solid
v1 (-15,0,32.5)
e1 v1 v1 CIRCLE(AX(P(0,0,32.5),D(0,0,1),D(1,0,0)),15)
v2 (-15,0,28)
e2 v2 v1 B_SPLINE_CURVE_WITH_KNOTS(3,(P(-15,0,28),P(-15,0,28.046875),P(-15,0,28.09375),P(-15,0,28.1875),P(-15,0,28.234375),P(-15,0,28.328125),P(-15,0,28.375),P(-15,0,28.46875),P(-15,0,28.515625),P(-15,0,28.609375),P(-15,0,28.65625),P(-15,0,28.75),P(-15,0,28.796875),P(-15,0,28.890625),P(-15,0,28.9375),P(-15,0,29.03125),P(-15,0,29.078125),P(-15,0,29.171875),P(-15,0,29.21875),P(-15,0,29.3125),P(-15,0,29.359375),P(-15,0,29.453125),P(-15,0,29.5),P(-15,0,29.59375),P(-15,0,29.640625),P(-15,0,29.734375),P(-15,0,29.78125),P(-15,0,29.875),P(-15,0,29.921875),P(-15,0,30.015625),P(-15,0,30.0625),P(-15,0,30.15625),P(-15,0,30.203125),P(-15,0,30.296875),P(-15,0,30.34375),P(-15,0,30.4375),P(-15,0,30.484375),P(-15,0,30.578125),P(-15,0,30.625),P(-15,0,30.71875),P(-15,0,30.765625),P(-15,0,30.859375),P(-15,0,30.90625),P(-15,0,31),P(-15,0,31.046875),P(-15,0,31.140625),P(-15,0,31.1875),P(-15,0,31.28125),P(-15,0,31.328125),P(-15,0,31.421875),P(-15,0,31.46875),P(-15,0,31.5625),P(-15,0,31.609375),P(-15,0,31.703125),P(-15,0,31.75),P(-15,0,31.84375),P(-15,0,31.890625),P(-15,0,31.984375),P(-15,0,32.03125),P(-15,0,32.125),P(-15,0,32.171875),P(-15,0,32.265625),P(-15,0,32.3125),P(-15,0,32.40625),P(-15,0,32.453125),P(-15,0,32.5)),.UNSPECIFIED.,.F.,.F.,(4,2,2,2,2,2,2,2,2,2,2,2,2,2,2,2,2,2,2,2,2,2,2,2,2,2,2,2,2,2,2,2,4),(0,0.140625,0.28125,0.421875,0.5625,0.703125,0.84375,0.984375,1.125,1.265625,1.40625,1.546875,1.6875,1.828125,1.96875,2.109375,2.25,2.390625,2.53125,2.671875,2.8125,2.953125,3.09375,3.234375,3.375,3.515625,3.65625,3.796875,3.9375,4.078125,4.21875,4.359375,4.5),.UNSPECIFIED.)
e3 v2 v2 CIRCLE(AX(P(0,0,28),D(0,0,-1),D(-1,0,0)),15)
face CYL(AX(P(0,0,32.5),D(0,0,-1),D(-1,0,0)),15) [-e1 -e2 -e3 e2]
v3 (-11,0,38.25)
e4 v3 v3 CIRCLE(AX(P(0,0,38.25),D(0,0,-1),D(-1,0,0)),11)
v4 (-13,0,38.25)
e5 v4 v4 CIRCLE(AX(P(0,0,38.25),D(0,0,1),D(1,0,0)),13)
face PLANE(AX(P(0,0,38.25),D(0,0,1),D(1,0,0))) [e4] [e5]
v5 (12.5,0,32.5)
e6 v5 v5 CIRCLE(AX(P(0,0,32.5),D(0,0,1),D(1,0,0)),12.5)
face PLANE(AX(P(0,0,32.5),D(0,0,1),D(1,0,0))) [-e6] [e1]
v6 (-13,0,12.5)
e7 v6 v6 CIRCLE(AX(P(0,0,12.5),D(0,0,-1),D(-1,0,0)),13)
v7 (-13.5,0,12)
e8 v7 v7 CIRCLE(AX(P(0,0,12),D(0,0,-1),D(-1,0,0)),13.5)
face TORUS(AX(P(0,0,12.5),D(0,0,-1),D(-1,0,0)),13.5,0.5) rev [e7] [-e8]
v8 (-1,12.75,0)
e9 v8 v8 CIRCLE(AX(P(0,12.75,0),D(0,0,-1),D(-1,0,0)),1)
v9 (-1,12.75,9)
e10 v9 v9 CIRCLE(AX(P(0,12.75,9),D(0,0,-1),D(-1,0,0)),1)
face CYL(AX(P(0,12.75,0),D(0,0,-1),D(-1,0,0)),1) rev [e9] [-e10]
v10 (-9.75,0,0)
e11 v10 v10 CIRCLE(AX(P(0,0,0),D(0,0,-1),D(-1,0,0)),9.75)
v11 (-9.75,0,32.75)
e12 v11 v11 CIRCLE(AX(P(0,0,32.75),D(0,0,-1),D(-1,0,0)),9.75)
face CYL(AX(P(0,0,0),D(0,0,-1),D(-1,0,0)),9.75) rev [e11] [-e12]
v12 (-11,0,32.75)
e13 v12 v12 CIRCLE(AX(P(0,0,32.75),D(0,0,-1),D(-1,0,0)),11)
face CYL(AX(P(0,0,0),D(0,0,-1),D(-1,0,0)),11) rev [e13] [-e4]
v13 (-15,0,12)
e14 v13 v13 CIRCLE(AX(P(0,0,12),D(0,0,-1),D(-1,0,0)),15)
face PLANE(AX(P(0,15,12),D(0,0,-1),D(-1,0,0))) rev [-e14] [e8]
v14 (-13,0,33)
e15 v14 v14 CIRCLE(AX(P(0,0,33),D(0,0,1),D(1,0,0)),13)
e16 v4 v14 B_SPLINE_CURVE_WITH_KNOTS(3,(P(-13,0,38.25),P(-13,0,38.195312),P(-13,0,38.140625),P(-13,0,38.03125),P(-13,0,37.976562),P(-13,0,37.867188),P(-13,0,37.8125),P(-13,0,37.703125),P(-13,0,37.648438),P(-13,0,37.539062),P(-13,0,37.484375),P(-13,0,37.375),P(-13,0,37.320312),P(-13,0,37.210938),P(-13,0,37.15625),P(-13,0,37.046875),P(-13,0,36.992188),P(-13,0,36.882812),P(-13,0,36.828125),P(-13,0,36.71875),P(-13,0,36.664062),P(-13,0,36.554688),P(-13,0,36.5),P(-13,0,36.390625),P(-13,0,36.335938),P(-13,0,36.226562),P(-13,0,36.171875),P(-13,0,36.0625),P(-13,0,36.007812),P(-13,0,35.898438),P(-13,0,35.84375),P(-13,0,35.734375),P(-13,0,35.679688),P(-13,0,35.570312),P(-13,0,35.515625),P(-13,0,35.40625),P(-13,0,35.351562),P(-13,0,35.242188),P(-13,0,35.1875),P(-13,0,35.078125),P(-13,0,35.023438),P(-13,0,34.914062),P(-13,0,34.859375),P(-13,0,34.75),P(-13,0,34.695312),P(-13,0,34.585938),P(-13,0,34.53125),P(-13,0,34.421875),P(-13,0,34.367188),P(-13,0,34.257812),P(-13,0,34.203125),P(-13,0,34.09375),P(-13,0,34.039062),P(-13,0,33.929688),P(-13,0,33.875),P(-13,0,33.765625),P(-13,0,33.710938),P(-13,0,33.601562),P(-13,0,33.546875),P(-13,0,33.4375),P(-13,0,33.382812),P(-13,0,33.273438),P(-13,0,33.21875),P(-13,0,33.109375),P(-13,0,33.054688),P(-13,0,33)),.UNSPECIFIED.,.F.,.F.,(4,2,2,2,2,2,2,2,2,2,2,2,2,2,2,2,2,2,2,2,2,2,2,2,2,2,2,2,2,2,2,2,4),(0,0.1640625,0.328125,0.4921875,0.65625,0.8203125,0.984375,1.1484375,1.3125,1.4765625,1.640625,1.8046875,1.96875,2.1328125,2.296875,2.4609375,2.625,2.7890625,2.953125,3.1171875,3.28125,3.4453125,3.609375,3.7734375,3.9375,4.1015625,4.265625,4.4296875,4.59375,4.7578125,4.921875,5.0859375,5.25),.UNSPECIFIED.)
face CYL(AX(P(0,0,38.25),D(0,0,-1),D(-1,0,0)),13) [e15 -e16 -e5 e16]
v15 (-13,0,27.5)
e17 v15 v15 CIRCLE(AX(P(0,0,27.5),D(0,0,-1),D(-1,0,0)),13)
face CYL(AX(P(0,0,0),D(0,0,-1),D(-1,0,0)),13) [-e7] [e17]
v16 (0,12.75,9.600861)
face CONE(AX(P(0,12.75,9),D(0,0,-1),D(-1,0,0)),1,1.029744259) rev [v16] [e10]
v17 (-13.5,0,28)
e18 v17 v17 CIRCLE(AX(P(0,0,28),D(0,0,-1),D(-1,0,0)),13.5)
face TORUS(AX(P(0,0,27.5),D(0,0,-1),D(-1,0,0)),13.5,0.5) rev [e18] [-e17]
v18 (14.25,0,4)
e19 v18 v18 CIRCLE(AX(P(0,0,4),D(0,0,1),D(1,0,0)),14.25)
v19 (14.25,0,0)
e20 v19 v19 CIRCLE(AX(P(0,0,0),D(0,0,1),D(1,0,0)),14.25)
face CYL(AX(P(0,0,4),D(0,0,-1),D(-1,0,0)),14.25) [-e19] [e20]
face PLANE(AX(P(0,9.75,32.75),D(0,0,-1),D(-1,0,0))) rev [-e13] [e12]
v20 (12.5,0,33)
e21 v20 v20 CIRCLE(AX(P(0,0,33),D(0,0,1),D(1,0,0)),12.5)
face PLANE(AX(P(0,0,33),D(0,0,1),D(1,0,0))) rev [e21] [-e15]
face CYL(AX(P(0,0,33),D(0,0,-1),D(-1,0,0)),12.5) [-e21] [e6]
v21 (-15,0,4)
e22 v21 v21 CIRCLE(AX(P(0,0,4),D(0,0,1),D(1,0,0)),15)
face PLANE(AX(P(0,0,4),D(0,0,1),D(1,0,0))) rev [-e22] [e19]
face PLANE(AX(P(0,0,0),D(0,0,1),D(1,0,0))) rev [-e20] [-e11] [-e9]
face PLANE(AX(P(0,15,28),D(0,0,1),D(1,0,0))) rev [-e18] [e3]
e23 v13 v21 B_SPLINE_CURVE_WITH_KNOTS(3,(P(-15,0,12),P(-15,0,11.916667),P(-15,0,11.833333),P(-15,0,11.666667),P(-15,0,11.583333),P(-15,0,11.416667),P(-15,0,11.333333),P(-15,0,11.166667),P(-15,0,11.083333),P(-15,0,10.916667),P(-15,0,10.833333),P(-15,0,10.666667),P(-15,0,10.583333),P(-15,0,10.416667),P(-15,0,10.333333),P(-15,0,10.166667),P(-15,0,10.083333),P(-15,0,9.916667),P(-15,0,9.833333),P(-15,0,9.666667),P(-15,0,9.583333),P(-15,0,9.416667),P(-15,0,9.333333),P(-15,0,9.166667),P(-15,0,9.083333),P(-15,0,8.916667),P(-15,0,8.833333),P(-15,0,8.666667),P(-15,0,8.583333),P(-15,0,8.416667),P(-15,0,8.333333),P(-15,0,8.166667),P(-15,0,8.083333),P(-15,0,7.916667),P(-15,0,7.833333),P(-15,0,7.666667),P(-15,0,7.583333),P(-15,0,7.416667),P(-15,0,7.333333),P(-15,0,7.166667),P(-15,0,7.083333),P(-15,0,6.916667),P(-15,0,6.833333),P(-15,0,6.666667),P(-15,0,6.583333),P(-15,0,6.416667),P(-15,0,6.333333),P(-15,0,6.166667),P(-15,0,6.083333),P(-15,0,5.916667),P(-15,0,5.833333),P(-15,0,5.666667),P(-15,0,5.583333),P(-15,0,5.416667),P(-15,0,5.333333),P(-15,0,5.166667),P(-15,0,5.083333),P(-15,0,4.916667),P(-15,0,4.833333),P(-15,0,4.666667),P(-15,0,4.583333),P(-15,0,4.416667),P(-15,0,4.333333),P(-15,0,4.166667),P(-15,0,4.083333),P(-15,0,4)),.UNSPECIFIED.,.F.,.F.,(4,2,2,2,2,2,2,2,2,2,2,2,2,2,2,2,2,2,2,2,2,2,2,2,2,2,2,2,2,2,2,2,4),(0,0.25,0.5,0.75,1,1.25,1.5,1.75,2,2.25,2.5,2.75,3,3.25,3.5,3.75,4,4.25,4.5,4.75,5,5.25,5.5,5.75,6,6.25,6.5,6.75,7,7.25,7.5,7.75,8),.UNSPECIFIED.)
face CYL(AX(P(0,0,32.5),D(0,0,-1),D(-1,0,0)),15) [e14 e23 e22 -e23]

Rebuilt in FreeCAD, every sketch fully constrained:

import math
import FreeCAD as App
import Part
import Sketcher
from FreeCAD import Vector
Q = App.Units.Quantity

doc = App.newDocument("Part")
params = doc.addObject("Spreadsheet::Sheet", "Params")
for row, (alias, value) in enumerate([
    ("sketch1_diameter", "28.5 mm"),
    ("pad1_length", "4 mm"),
    ("sketch2_diameter", "30 mm"),
    ("pad2_length", "28.5 mm"),
    ("sketch3_diameter", "25 mm"),
    ("pad3_length", "0.5 mm"),
    ("sketch4_diameter", "26 mm"),
    ("pad4_length", "5.25 mm"),
    ("sketch5_radius", "0.5 mm"),
    ("sketch5_width", "11 mm"),
    ("sketch5_height", "16 mm"),
    ("sketch5_width2", "1.5 mm"),
    ("sketch5_height2", "5.5 mm"),
    ("groove_angle", "360 deg"),
    ("sketch6_diameter", "2 mm"),
    ("hole_diameter", "2 mm"),
    ("hole_depth", "9 mm"),
], start=1):
    params.set(f"A{row}", alias)
    params.set(f"B{row}", "=" + value)
    params.setAlias(f"B{row}", alias)

body = doc.addObject("PartDesign::Body", "Body")

sketch1 = body.newObject("Sketcher::SketchObject", "Sketch")
sketch1.AttachmentSupport = (doc.getObject("XY_Plane"), [""])
sketch1.MapMode = "FlatFace"
sketch1.addGeometry(Part.Circle(Vector(0, 0, 0), Vector(0, 0, 1), 14), False)
sketch1.addConstraint([
    Sketcher.Constraint("Coincident", 0, 3, -1, 1),
    Sketcher.Constraint("Diameter", 0, Q("28.5 mm")),
])
sketch1.setExpression("Constraints[1]", "Params.sketch1_diameter")
pad1 = body.newObject("PartDesign::Pad", "Pad")
pad1.Profile = sketch1
pad1.setExpression("Length", "Params.pad1_length")

sketch2 = body.newObject("Sketcher::SketchObject", "Sketch001")
sketch2.AttachmentSupport = (doc.getObject("XY_Plane"), [""])
sketch2.MapMode = "FlatFace"
sketch2.AttachmentOffset = App.Placement(Vector(0, 0, 4), App.Rotation())
sketch2.addGeometry(Part.Circle(Vector(0, 0, 0), Vector(0, 0, 1), 15), False)
sketch2.addConstraint([
    Sketcher.Constraint("Coincident", 0, 3, -1, 1),
    Sketcher.Constraint("Diameter", 0, Q("30 mm")),
])
sketch2.setExpression("Constraints[1]", "Params.sketch2_diameter")
pad2 = body.newObject("PartDesign::Pad", "Pad001")
pad2.Profile = sketch2
pad2.setExpression("Length", "Params.pad2_length")

sketch3 = body.newObject("Sketcher::SketchObject", "Sketch002")
sketch3.AttachmentSupport = (doc.getObject("XY_Plane"), [""])
sketch3.MapMode = "FlatFace"
sketch3.AttachmentOffset = App.Placement(Vector(0, 0, 32.5), App.Rotation())
sketch3.addGeometry(Part.Circle(Vector(0, 0, 0), Vector(0, 0, 1), 12), False)
sketch3.addConstraint([
    Sketcher.Constraint("Coincident", 0, 3, -1, 1),
    Sketcher.Constraint("Diameter", 0, Q("25 mm")),
])
sketch3.setExpression("Constraints[1]", "Params.sketch3_diameter")
pad3 = body.newObject("PartDesign::Pad", "Pad002")
pad3.Profile = sketch3
pad3.setExpression("Length", "Params.pad3_length")

sketch4 = body.newObject("Sketcher::SketchObject", "Sketch003")
sketch4.AttachmentSupport = (doc.getObject("XY_Plane"), [""])
sketch4.MapMode = "FlatFace"
sketch4.AttachmentOffset = App.Placement(Vector(0, 0, 33), App.Rotation())
sketch4.addGeometry(Part.Circle(Vector(0, 0, 0), Vector(0, 0, 1), 13), False)
sketch4.addConstraint([
    Sketcher.Constraint("Coincident", 0, 3, -1, 1),
    Sketcher.Constraint("Diameter", 0, Q("26 mm")),
])
sketch4.setExpression("Constraints[1]", "Params.sketch4_diameter")
pad4 = body.newObject("PartDesign::Pad", "Pad003")
pad4.Profile = sketch4
pad4.setExpression("Length", "Params.pad4_length")

sketch5 = body.newObject("Sketcher::SketchObject", "Sketch004")
sketch5.AttachmentSupport = (doc.getObject("YZ_Plane"), [""])
sketch5.MapMode = "FlatFace"
sketch5.addGeometry([
    Part.LineSegment(Vector(0, 38.25, 0), Vector(0, 0, 0)),
    Part.LineSegment(Vector(0, 0, 0), Vector(9.75, 0, 0)),
    Part.LineSegment(Vector(9.75, 0, 0), Vector(9.75, 32.75, 0)),
    Part.LineSegment(Vector(9.75, 32.75, 0), Vector(11, 32.75, 0)),
    Part.LineSegment(Vector(11, 32.75, 0), Vector(11, 38.25, 0)),
    Part.LineSegment(Vector(11, 38.25, 0), Vector(0, 38.25, 0)),
    Part.LineSegment(Vector(15, 12, 0), Vector(15, 28, 0)),
    Part.LineSegment(Vector(15, 28, 0), Vector(13.5, 28, 0)),
    Part.ArcOfCircle(Part.Circle(Vector(13.5, 27.5, 0), Vector(0, 0, 1), 0.5), math.radians(90), math.radians(180)),
    Part.LineSegment(Vector(13, 27.5, 0), Vector(13, 12.5, 0)),
    Part.ArcOfCircle(Part.Circle(Vector(13.5, 12.5, 0), Vector(0, 0, 1), 0.5), math.radians(180), math.radians(270)),
    Part.LineSegment(Vector(13.5, 12, 0), Vector(15, 12, 0)),
], False)
sketch5.addConstraint([
    Sketcher.Constraint("Coincident", 0, 2, 1, 1),
    Sketcher.Constraint("Coincident", 1, 2, 2, 1),
    Sketcher.Constraint("Coincident", 2, 2, 3, 1),
    Sketcher.Constraint("Coincident", 3, 2, 4, 1),
    Sketcher.Constraint("Coincident", 4, 2, 5, 1),
    Sketcher.Constraint("Coincident", 5, 2, 0, 1),
    Sketcher.Constraint("Coincident", 6, 2, 7, 1),
    Sketcher.Constraint("Tangent", 7, 2, 8, 1),
    Sketcher.Constraint("Tangent", 8, 2, 9, 1),
    Sketcher.Constraint("Tangent", 9, 2, 10, 1),
    Sketcher.Constraint("Tangent", 10, 2, 11, 1),
    Sketcher.Constraint("Coincident", 11, 2, 6, 1),
    Sketcher.Constraint("Vertical", 0),
    Sketcher.Constraint("Horizontal", 1),
    Sketcher.Constraint("Vertical", 2),
    Sketcher.Constraint("Horizontal", 3),
    Sketcher.Constraint("Vertical", 4),
    Sketcher.Constraint("Horizontal", 5),
    Sketcher.Constraint("Vertical", 6),
    Sketcher.Constraint("Horizontal", 7),
    Sketcher.Constraint("Vertical", 9),
    Sketcher.Constraint("Horizontal", 11),
    Sketcher.Constraint("Coincident", 0, 2, -1, 1),
    Sketcher.Constraint("Equal", 8, 10),
    Sketcher.Constraint("Radius", 8, Q("0.5 mm")),
    Sketcher.Constraint("DistanceX", 5, 2, 5, 1, Q("11 mm")),
    Sketcher.Constraint("DistanceY", 6, 1, 6, 2, Q("16 mm")),
    Sketcher.Constraint("DistanceX", 7, 2, 7, 1, Q("1.5 mm")),
    Sketcher.Constraint("DistanceY", 4, 1, 4, 2, Q("5.5 mm")),
    Sketcher.Constraint("DistanceX", -1, 1, 6, 2, Q("15 mm")),
    Sketcher.Constraint("DistanceY", -1, 1, 6, 2, Q("28 mm")),
    Sketcher.Constraint("DistanceX", 1, 1, 1, 2, Q("9.75 mm")),
    Sketcher.Constraint("DistanceY", 0, 2, 0, 1, Q("38.25 mm")),
])
sketch5.setExpression("Constraints[24]", "Params.sketch5_radius")
sketch5.setExpression("Constraints[25]", "Params.sketch5_width")
sketch5.setExpression("Constraints[26]", "Params.sketch5_height")
sketch5.setExpression("Constraints[27]", "Params.sketch5_width2")
sketch5.setExpression("Constraints[28]", "Params.sketch5_height2")
groove = body.newObject("PartDesign::Groove", "Groove")
groove.Profile = sketch5
groove.ReferenceAxis = (sketch5, ["V_Axis"])
groove.setExpression("Angle", "Params.groove_angle")

sketch6 = body.newObject("Sketcher::SketchObject", "Sketch005")
sketch6.AttachmentSupport = (doc.getObject("XY_Plane"), [""])
sketch6.MapMode = "FlatFace"
sketch6.addGeometry(Part.Circle(Vector(0, 12.8, 0), Vector(0, 0, 1), 1), False)
sketch6.addConstraint([
    Sketcher.Constraint("PointOnObject", 0, 3, -2),
    Sketcher.Constraint("Diameter", 0, Q("2 mm")),
    Sketcher.Constraint("DistanceY", -1, 1, 0, 3, Q("12.75 mm")),
])
sketch6.setExpression("Constraints[1]", "Params.sketch6_diameter")
doc.recompute()
hole = body.newObject("PartDesign::Hole", "Hole")
hole.Profile = sketch6
hole.ThreadType = "None"
hole.setExpression("Diameter", "Params.hole_diameter")
hole.DepthType = "Dimension"
hole.setExpression("Depth", "Params.hole_depth")
hole.DrillPoint = "Angled"
hole.DrillPointAngle = 118
hole.Reversed = True

doc.recompute()
